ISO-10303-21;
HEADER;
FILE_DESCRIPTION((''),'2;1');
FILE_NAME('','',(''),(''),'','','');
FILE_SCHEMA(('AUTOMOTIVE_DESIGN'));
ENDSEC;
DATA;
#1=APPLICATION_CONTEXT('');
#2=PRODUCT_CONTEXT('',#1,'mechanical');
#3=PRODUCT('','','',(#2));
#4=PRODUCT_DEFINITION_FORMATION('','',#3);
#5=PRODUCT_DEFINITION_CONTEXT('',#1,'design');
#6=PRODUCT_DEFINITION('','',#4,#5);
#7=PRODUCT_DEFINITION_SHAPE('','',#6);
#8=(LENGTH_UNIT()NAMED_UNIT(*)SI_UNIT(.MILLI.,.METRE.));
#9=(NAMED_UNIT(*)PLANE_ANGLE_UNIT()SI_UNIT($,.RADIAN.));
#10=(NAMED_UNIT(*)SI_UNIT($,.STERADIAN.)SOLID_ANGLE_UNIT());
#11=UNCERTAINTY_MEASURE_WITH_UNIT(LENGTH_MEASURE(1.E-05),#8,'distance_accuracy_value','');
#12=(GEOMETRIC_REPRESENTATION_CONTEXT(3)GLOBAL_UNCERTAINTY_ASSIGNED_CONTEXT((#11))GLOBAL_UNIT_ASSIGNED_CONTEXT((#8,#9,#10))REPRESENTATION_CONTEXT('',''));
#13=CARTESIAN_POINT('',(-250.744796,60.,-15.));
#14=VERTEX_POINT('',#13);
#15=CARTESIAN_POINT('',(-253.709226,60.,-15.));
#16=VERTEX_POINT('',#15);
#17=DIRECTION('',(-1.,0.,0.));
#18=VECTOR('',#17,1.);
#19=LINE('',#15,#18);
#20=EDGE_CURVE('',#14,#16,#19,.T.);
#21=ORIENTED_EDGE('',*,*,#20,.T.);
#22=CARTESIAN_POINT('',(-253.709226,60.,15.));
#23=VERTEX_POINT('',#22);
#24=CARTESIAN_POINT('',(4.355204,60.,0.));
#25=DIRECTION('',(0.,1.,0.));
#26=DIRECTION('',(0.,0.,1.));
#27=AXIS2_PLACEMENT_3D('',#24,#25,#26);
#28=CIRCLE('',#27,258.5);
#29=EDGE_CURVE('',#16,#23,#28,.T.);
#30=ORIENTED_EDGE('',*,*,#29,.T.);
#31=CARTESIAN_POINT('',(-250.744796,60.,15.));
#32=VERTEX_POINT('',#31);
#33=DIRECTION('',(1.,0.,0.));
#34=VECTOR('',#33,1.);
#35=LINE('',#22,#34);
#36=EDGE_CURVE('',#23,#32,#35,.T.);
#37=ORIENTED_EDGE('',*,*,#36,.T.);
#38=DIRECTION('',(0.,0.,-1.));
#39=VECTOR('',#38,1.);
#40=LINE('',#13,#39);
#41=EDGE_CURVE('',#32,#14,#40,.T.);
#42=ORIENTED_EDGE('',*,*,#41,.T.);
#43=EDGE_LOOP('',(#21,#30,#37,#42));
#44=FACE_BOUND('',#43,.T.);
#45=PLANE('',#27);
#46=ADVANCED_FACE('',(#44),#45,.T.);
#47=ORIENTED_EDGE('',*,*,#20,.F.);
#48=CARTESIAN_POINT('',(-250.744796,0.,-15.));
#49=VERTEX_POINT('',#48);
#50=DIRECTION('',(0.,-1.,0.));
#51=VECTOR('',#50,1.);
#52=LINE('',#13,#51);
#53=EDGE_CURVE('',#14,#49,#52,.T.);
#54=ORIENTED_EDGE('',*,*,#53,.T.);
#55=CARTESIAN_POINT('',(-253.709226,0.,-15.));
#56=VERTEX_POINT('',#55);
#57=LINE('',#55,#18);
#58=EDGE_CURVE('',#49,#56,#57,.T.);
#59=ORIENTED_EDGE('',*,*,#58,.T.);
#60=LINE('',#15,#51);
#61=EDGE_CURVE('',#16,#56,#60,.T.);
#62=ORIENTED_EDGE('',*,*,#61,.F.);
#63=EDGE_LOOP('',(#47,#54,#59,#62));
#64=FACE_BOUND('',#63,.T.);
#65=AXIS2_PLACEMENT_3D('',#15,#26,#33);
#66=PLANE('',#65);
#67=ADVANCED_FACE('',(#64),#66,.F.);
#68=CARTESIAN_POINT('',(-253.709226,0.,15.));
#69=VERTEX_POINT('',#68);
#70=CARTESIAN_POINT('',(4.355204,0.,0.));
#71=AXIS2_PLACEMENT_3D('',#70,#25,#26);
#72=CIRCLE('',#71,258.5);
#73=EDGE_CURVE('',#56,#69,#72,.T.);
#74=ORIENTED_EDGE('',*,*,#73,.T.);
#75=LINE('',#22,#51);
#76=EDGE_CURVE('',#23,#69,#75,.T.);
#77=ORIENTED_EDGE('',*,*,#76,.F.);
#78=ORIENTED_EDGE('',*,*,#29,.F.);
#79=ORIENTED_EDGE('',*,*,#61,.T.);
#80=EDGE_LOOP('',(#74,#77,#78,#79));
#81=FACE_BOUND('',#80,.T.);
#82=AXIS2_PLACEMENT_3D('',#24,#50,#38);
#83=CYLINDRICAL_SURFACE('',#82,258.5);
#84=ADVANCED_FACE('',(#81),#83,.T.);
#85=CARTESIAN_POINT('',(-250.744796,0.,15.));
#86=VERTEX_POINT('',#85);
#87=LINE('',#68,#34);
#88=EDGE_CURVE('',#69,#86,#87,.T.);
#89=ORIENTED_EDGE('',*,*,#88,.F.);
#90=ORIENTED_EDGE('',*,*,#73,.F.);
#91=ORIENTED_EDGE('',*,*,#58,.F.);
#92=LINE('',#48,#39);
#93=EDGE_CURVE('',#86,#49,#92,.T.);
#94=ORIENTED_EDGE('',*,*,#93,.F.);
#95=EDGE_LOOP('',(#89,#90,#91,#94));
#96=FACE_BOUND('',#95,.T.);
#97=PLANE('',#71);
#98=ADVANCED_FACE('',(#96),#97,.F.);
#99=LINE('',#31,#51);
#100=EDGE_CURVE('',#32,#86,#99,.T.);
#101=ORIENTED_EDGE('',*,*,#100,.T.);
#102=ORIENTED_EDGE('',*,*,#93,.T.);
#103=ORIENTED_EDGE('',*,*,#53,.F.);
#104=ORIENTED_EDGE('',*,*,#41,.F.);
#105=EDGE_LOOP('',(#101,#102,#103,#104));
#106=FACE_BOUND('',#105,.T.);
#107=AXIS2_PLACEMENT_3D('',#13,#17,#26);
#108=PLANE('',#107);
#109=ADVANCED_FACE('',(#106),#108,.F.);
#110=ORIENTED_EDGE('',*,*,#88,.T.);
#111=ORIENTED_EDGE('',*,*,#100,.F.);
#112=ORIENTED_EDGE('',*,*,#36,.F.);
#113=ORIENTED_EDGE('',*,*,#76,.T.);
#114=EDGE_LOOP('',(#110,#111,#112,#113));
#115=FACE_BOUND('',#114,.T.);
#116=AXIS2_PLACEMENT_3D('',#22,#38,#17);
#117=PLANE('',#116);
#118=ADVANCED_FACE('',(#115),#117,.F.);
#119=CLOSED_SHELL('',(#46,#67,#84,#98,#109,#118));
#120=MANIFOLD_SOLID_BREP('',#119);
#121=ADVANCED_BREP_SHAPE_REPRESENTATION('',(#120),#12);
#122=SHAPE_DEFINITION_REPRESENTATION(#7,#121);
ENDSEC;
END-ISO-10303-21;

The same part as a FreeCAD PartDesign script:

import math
import FreeCAD as App
import Part
import Sketcher
Q = App.Units.Quantity

doc = App.newDocument("Part")
params = doc.addObject("Spreadsheet::Sheet", "Params")
for row, (alias, value) in enumerate([
    ("sketch1_radius", "258.5 mm"),
    ("sketch1_height", "30 mm"),
    ("pad1_length", "60 mm"),
], start=1):
    params.set(f"A{row}", alias)
    params.set(f"B{row}", "=" + value)
    params.setAlias(f"B{row}", alias)

body = doc.addObject("PartDesign::Body", "Body")

# Sketch on XZ plane
sketch1 = doc.addObject("Sketcher::SketchObject", "Sketch")
body.addObject(sketch1)
sketch1.AttachmentSupport = (doc.XZ_Plane, [""])
sketch1.MapMode = "FlatFace"
sketch1.addGeometry([
    Part.LineSegment(App.Vector(-250.744796, -15, 0), App.Vector(-253.709226, -15, 0)),
    Part.ArcOfCircle(Part.Circle(App.Vector(4.355205, 0, 0), App.Vector(0, 0, 1), 258.5), math.radians(176.673425), math.radians(183.326575)),
    Part.LineSegment(App.Vector(-253.709226, 15, 0), App.Vector(-250.744796, 15, 0)),
    Part.LineSegment(App.Vector(-250.744796, 15, 0), App.Vector(-250.744796, -15, 0)),
], False)
sketch1.addConstraint([
    Sketcher.Constraint("Coincident", 0, 2, 1, 2),
    Sketcher.Constraint("Coincident", 1, 1, 2, 1),
    Sketcher.Constraint("Coincident", 2, 2, 3, 1),
    Sketcher.Constraint("Coincident", 3, 2, 0, 1),
    Sketcher.Constraint("Horizontal", 0),
    Sketcher.Constraint("Horizontal", 2),
    Sketcher.Constraint("Vertical", 3),
    Sketcher.Constraint("Symmetric", 0, 2, 1, 1, -1),
    Sketcher.Constraint("Radius", 1, Q("258.5 mm")),
    Sketcher.Constraint("DistanceY", 3, 2, 3, 1, Q("30 mm")),
    Sketcher.Constraint("DistanceX", 2, 2, 1, 3, Q("255.1 mm")),
    Sketcher.Constraint("DistanceX", -1, 1, 1, 3, Q("4.355205 mm")),
])
sketch1.setExpression("Constraints[8]", "Params.sketch1_radius")
sketch1.setExpression("Constraints[9]", "Params.sketch1_height")
pad1 = doc.addObject("PartDesign::Pad", "Pad")
body.addObject(pad1)
pad1.Profile = sketch1
pad1.setExpression("Length", "Params.pad1_length")
pad1.Reversed = True

doc.recompute()
